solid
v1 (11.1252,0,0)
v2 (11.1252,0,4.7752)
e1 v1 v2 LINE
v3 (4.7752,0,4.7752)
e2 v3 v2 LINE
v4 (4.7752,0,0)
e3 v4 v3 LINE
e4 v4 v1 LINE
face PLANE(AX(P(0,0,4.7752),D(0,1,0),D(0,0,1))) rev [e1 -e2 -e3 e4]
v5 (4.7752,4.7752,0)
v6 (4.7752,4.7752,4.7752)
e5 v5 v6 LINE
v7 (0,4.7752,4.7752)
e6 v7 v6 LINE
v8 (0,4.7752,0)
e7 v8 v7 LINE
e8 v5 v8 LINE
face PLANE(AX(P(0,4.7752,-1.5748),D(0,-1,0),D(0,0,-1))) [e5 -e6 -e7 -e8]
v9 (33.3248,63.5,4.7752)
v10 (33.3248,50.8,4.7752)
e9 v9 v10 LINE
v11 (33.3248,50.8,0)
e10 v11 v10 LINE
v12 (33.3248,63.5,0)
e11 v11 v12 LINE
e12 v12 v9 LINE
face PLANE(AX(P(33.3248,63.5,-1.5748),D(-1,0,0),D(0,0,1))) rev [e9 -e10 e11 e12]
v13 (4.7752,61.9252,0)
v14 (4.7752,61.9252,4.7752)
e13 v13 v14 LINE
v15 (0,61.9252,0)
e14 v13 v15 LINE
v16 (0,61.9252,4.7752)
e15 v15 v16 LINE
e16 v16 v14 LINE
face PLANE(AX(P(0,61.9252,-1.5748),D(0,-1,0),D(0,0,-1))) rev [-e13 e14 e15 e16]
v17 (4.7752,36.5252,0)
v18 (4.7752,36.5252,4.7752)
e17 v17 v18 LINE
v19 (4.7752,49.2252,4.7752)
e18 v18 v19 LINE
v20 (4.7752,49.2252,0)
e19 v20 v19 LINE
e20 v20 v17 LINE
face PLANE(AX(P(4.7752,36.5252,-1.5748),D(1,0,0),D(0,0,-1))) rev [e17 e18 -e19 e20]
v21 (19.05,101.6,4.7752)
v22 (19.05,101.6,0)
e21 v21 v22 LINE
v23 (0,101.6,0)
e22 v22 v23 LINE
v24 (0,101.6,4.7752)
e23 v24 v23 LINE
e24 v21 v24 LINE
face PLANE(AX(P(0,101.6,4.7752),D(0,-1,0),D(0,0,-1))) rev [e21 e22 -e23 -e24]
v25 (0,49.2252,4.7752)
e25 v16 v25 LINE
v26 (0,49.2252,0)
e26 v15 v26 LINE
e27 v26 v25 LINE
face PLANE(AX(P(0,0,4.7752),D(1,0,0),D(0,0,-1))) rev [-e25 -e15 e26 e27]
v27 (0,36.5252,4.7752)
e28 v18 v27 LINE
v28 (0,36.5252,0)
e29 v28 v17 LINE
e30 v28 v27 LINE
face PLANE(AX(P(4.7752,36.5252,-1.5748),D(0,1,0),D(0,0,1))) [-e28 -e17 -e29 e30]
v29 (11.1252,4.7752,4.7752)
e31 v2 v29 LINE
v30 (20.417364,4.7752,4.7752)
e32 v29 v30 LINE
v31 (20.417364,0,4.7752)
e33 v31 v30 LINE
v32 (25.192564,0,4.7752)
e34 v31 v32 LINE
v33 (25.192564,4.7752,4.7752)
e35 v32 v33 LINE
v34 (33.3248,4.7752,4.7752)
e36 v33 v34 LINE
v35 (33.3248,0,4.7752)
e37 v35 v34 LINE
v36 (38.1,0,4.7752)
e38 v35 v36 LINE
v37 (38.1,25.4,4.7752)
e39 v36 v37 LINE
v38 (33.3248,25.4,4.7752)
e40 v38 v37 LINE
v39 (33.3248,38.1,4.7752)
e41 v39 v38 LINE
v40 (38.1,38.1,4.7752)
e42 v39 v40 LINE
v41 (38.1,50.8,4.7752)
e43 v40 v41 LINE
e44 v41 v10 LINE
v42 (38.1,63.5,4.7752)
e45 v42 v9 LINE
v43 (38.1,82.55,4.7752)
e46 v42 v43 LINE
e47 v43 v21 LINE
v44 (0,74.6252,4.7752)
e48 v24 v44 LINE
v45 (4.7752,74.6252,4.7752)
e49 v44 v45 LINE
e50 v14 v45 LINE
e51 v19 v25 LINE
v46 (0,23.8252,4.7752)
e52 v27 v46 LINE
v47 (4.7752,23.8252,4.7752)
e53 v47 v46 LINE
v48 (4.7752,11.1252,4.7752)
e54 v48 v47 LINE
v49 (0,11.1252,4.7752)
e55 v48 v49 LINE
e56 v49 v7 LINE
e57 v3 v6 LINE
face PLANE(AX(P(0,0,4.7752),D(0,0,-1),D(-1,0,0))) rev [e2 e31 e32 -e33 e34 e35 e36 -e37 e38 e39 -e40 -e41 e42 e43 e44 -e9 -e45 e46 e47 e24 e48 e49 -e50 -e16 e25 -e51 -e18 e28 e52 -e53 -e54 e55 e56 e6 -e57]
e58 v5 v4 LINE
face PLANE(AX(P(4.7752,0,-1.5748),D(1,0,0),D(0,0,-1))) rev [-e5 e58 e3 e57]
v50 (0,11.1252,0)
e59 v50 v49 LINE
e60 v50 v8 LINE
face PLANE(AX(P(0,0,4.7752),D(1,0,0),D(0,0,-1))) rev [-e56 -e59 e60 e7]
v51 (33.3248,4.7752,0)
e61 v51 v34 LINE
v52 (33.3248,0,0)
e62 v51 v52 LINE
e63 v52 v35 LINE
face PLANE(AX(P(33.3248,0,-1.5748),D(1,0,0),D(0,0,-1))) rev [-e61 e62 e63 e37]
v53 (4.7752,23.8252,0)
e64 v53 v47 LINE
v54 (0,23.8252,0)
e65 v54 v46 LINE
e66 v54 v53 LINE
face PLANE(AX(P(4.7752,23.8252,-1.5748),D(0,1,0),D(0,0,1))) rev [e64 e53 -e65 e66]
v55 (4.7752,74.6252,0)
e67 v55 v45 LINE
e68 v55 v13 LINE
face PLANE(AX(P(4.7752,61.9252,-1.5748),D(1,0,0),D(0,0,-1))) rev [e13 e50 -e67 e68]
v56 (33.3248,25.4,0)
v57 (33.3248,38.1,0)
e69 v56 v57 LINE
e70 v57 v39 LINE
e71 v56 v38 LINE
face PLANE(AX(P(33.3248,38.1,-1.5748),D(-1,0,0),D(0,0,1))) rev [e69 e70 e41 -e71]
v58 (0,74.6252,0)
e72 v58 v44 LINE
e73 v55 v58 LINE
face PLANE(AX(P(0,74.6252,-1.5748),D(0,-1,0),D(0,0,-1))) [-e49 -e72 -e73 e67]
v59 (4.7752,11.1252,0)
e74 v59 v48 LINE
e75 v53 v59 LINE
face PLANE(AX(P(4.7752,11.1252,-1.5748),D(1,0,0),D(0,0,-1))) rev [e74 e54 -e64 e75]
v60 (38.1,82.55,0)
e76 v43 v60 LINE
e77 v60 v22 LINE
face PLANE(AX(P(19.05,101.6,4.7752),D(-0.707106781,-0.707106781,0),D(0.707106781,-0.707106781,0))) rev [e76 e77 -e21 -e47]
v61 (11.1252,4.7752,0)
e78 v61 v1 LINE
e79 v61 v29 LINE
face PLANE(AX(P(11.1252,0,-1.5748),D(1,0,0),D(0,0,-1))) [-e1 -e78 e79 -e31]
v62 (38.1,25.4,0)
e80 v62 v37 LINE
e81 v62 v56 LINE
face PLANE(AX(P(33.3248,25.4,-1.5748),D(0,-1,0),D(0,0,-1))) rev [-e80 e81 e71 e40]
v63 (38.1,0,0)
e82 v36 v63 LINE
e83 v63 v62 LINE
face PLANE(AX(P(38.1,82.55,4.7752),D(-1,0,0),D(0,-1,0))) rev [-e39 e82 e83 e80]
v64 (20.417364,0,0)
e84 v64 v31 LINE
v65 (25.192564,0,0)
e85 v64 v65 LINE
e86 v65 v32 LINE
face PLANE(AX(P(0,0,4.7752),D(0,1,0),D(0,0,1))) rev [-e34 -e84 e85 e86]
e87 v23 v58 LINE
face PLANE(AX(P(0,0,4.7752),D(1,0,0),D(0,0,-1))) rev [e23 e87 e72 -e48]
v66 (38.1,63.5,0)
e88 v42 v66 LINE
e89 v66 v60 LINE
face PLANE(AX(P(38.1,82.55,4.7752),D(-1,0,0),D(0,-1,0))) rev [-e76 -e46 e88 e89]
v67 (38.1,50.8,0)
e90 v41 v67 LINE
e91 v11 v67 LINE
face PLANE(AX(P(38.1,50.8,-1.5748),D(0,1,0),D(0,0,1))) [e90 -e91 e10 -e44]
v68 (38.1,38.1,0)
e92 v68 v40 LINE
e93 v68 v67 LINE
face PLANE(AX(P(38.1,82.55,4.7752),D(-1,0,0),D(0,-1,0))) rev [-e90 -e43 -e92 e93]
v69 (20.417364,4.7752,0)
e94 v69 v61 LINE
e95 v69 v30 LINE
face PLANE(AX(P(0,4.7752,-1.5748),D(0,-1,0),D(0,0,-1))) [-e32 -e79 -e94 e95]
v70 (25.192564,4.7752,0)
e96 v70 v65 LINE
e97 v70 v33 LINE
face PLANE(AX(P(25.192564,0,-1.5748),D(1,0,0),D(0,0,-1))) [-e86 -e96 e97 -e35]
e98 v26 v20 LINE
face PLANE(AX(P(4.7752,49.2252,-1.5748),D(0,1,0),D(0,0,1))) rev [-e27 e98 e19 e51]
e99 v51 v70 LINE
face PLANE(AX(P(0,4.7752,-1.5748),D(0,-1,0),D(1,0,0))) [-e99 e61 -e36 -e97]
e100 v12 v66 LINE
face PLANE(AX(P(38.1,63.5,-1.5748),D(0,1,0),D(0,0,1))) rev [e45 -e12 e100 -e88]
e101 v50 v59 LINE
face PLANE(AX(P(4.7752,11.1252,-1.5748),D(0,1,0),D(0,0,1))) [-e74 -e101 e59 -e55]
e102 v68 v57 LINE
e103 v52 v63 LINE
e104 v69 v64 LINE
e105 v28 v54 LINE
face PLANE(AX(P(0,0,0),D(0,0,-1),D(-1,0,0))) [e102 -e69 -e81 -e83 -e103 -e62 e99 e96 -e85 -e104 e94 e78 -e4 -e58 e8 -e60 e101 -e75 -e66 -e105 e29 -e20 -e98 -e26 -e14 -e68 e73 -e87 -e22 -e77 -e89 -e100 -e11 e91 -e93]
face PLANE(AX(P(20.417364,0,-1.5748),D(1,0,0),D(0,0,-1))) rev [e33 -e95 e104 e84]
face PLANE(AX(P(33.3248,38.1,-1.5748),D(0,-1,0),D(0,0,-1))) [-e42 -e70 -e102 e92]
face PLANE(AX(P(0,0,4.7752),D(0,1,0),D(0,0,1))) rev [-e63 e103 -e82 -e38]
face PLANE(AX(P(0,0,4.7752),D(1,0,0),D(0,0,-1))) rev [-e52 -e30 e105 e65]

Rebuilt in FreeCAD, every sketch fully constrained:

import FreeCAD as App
import Part
import Sketcher
from FreeCAD import Vector
Q = App.Units.Quantity


def add_polygon(sketch, points):
    """Adds a closed chain of lines whose ends are joined by coincident constraints."""
    first, n = sketch.GeometryCount, len(points)
    for a, b in zip(points, points[1:] + points[:1]):
        sketch.addGeometry(Part.LineSegment(App.Vector(*a, 0), App.Vector(*b, 0)), False)
    for i in range(n):
        sketch.addConstraint(Sketcher.Constraint("Coincident", first + i, 2, first + (i + 1) % n, 1))

doc = App.newDocument("Part")
body = doc.addObject("PartDesign::Body", "Body")

sketch1 = body.newObject("Sketcher::SketchObject", "Sketch")
sketch1.AttachmentSupport = (doc.getObject("XY_Plane"), [""])
sketch1.MapMode = "FlatFace"
add_polygon(sketch1, [(0, 0), (38, 0), (38, 83), (19, 102), (0, 102)])
sketch1.addConstraint([
    Sketcher.Constraint("Horizontal", 0),
    Sketcher.Constraint("Vertical", 1),
    Sketcher.Constraint("Horizontal", 3),
    Sketcher.Constraint("Vertical", 4),
    Sketcher.Constraint("Coincident", 4, 2, -1, 1),
    Sketcher.Constraint("DistanceY", 4, 2, 4, 1, Q("4 in")),
    Sketcher.Constraint("DistanceX", 0, 1, 0, 2, Q("1.5 in")),
    Sketcher.Constraint("Angle", 2, Q("135 deg")),
    Sketcher.Constraint("DistanceX", 3, 2, 3, 1, Q("0.75 in")),
])
pad1 = body.newObject("PartDesign::Pad", "Pad")
pad1.Profile = sketch1
pad1.Length = Q("0.188 in")

sketch2 = body.newObject("Sketcher::SketchObject", "Sketch001")
sketch2.AttachmentSupport = (doc.getObject("XY_Plane"), [""])
sketch2.MapMode = "FlatFace"
sketch2.AttachmentOffset = App.Placement(Vector(0, 0, 0.188 * 25.4), App.Rotation())
add_polygon(sketch2, [(0, 4.8), (0, 0), (4.8, 0), (4.8, 4.8)])
add_polygon(sketch2, [(11.1, 4.8), (11.1, 0), (20.4, 0), (20.4, 4.8)])
add_polygon(sketch2, [(25.2, 4.8), (25.2, 0), (33.3, 0), (33.3, 4.8)])
sketch2.addConstraint([
    Sketcher.Constraint("Vertical", 0),
    Sketcher.Constraint("Horizontal", 1),
    Sketcher.Constraint("Vertical", 2),
    Sketcher.Constraint("Horizontal", 3),
    Sketcher.Constraint("Vertical", 4),
    Sketcher.Constraint("Horizontal", 5),
    Sketcher.Constraint("Vertical", 6),
    Sketcher.Constraint("Horizontal", 7),
    Sketcher.Constraint("Vertical", 8),
    Sketcher.Constraint("Horizontal", 9),
    Sketcher.Constraint("Vertical", 10),
    Sketcher.Constraint("Horizontal", 11),
    Sketcher.Constraint("Coincident", 0, 2, -1, 1),
    Sketcher.Constraint("PointOnObject", 4, 2, -1),
    Sketcher.Constraint("PointOnObject", 8, 2, -1),
    Sketcher.Constraint("Horizontal", 3, 2, 6, 2),
    Sketcher.Constraint("Horizontal", 7, 2, 10, 2),
    Sketcher.Constraint("Equal", 3, 0),
    Sketcher.Constraint("DistanceX", 1, 1, 1, 2, Q("0.188 in")),
    Sketcher.Constraint("DistanceX", 1, 2, 4, 2, Q("0.25 in")),
    Sketcher.Constraint("DistanceX", -1, 1, 9, 2, Q("1.312 in")),
    Sketcher.Constraint("DistanceX", 5, 2, 8, 2, Q("0.188 in")),
    Sketcher.Constraint("DistanceX", 5, 1, 5, 2, Q("9.292164 mm")),
])
pocket1 = body.newObject("PartDesign::Pocket", "Pocket")
pocket1.Profile = sketch2
pocket1.Length = Q("0.25 in")

sketch3 = body.newObject("Sketcher::SketchObject", "Sketch002")
sketch3.AttachmentSupport = (doc.getObject("XY_Plane"), [""])
sketch3.MapMode = "FlatFace"
sketch3.AttachmentOffset = App.Placement(Vector(0, 0, 0.188 * 25.4), App.Rotation())
add_polygon(sketch3, [(0, 23.8), (0, 11.1), (4.8, 11.1), (4.8, 23.8)])
add_polygon(sketch3, [(0, 49.2), (0, 36.5), (4.8, 36.5), (4.8, 49.2)])
add_polygon(sketch3, [(0, 74.6), (0, 61.9), (4.8, 61.9), (4.8, 74.6)])
add_polygon(sketch3, [(33.3, 63.5), (33.3, 50.8), (38.1, 50.8), (38.1, 63.5)])
add_polygon(sketch3, [(33.3, 38.1), (33.3, 25.4), (38.1, 25.4), (38.1, 38.1)])
sketch3.addConstraint([
    Sketcher.Constraint("Vertical", 0),
    Sketcher.Constraint("Horizontal", 1),
    Sketcher.Constraint("Vertical", 2),
    Sketcher.Constraint("Horizontal", 3),
    Sketcher.Constraint("Vertical", 4),
    Sketcher.Constraint("Horizontal", 5),
    Sketcher.Constraint("Vertical", 6),
    Sketcher.Constraint("Horizontal", 7),
    Sketcher.Constraint("Vertical", 8),
    Sketcher.Constraint("Horizontal", 9),
    Sketcher.Constraint("Vertical", 10),
    Sketcher.Constraint("Horizontal", 11),
    Sketcher.Constraint("Vertical", 12),
    Sketcher.Constraint("Horizontal", 13),
    Sketcher.Constraint("Vertical", 14),
    Sketcher.Constraint("Horizontal", 15),
    Sketcher.Constraint("Vertical", 16),
    Sketcher.Constraint("Horizontal", 17),
    Sketcher.Constraint("Vertical", 18),
    Sketcher.Constraint("Horizontal", 19),
    Sketcher.Constraint("PointOnObject", 0, 2, -2),
    Sketcher.Constraint("PointOnObject", 4, 2, -2),
    Sketcher.Constraint("PointOnObject", 8, 2, -2),
    Sketcher.Constraint("Vertical", 2, 2, 5, 2),
    Sketcher.Constraint("Vertical", 6, 2, 9, 2),
    Sketcher.Constraint("Vertical", 15, 2, 16, 2),
    Sketcher.Constraint("Vertical", 14, 2, 17, 2),
    Sketcher.Constraint("Equal", 11, 13),
    Sketcher.Constraint("Equal", 2, 4),
    Sketcher.Constraint("Equal", 6, 8),
    Sketcher.Constraint("Equal", 10, 12),
    Sketcher.Constraint("Equal", 14, 16),
    Sketcher.Constraint("DistanceY", 0, 2, 0, 1, Q("0.5 in")),
    Sketcher.Constraint("DistanceY", -1, 1, 12, 2, Q("2 in")),
    Sketcher.Constraint("DistanceY", -1, 1, 16, 2, Q("1 in")),
    Sketcher.Constraint("DistanceY", 0, 2, 4, 2, Q("1 in")),
    Sketcher.Constraint("DistanceY", 4, 2, 8, 2, Q("1 in")),
    Sketcher.Constraint("DistanceX", -1, 1, 13, 2, Q("1.5 in")),
    Sketcher.Constraint("DistanceX", 1, 1, 1, 2, Q("0.188 in")),
    Sketcher.Constraint("DistanceY", -1, 1, 0, 2, Q("0.438 in")),
])
pocket2 = body.newObject("PartDesign::Pocket", "Pocket001")
pocket2.Profile = sketch3
pocket2.Length = Q("0.25 in")

doc.recompute()
